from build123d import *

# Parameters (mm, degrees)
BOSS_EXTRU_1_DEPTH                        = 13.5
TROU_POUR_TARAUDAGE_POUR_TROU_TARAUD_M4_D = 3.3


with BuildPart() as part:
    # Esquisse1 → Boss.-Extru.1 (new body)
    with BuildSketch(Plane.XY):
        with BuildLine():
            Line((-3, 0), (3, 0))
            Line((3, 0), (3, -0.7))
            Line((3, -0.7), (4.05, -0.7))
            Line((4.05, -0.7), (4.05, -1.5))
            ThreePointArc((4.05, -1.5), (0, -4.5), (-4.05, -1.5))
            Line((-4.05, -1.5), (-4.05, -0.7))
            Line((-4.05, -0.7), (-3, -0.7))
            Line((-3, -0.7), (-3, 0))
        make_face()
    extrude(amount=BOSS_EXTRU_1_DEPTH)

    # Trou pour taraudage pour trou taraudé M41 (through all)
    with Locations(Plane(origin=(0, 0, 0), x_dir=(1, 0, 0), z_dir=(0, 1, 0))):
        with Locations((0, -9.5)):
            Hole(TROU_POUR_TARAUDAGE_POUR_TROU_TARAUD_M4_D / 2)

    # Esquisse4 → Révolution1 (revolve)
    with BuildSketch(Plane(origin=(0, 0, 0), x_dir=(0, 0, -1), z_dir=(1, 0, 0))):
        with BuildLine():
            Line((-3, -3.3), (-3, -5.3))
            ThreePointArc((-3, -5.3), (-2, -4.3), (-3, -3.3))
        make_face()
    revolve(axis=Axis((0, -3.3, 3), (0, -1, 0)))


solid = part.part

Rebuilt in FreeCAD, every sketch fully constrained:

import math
import FreeCAD as App
import Part
import Sketcher

V = App.Vector

doc = App.newDocument("Part")
body = doc.addObject("PartDesign::Body", "Body")

# Sketch on XY plane
sketch1 = doc.addObject("Sketcher::SketchObject", "Sketch")
body.addObject(sketch1)
sketch1.AttachmentSupport = (doc.XY_Plane, [""])
sketch1.MapMode = "FlatFace"
sketch1.addGeometry(Part.LineSegment(V(3, 0, 0), V(-3, 0, 0)), False)
sketch1.addGeometry(Part.LineSegment(V(-3, 0, 0), V(-3, -0.7, 0)), False)
sketch1.addGeometry(Part.LineSegment(V(-3, -0.7, 0), V(-4, -0.7, 0)), False)
sketch1.addGeometry(Part.LineSegment(V(-4, -0.7, 0), V(-4, -1.5, 0)), False)
sketch1.addGeometry(Part.ArcOfCircle(Part.Circle(V(0, -0.3, 0), V(0, 0, 1), 4.2), math.radians(-163), math.radians(-17)), False)
sketch1.addGeometry(Part.LineSegment(V(4, -1.5, 0), V(4, -0.7, 0)), False)
sketch1.addGeometry(Part.LineSegment(V(4, -0.7, 0), V(3, -0.7, 0)), False)
sketch1.addGeometry(Part.LineSegment(V(3, -0.7, 0), V(3, 0, 0)), False)
sketch1.addConstraint(Sketcher.Constraint("Coincident", 0, 2, 1, 1))
sketch1.addConstraint(Sketcher.Constraint("Coincident", 1, 2, 2, 1))
sketch1.addConstraint(Sketcher.Constraint("Coincident", 2, 2, 3, 1))
sketch1.addConstraint(Sketcher.Constraint("Coincident", 3, 2, 4, 1))
sketch1.addConstraint(Sketcher.Constraint("Coincident", 4, 2, 5, 1))
sketch1.addConstraint(Sketcher.Constraint("Coincident", 5, 2, 6, 1))
sketch1.addConstraint(Sketcher.Constraint("Coincident", 6, 2, 7, 1))
sketch1.addConstraint(Sketcher.Constraint("Coincident", 7, 2, 0, 1))
sketch1.addConstraint(Sketcher.Constraint("Horizontal", 0))
sketch1.addConstraint(Sketcher.Constraint("Vertical", 1))
sketch1.addConstraint(Sketcher.Constraint("Horizontal", 2))
sketch1.addConstraint(Sketcher.Constraint("Vertical", 3))
sketch1.addConstraint(Sketcher.Constraint("Vertical", 5))
sketch1.addConstraint(Sketcher.Constraint("Horizontal", 6))
sketch1.addConstraint(Sketcher.Constraint("Vertical", 7))
sketch1.addConstraint(Sketcher.Constraint("Symmetric", 0, 2, 7, 2, -1, 1))
sketch1.addConstraint(Sketcher.Constraint("Symmetric", 3, 2, 4, 2, -2))
sketch1.addConstraint(Sketcher.Constraint("Horizontal", 2, 2, 5, 2))
sketch1.addConstraint(Sketcher.Constraint("DistanceX", 0, 2, 0, 1, 6.0))
sketch1.addConstraint(Sketcher.Constraint("DistanceY", 1, 2, 1, 1, 0.7))
sketch1.addConstraint(Sketcher.Constraint("DistanceY", 3, 2, 3, 1, 0.8))
sketch1.addConstraint(Sketcher.Constraint("DistanceX", 2, 2, 2, 1, 1.05))
sketch1.addConstraint(Sketcher.Constraint("Radius", 4, 4.23375))
pad1 = doc.addObject("PartDesign::Pad", "Pad")
body.addObject(pad1)
pad1.Profile = sketch1
pad1.Length = 13.5

# Sketch on XZ plane
sketch2 = doc.addObject("Sketcher::SketchObject", "Sketch001")
body.addObject(sketch2)
sketch2.AttachmentSupport = (doc.XZ_Plane, [""])
sketch2.MapMode = "FlatFace"
sketch2.addGeometry(Part.Circle(V(0, 9.5, 0), V(0, 0, 1), 1.6), False)
sketch2.addConstraint(Sketcher.Constraint("PointOnObject", 0, 3, -2))
sketch2.addConstraint(Sketcher.Constraint("Diameter", 0, 3.3))
sketch2.addConstraint(Sketcher.Constraint("DistanceY", -1, 1, 0, 3, 9.5))
doc.recompute()
hole = doc.addObject("PartDesign::Hole", "Hole")
body.addObject(hole)
hole.Profile = sketch2
hole.ThreadType = "None"
hole.Diameter = 3.3
hole.DepthType = "ThroughAll"
hole.Reversed = True

# Sketch on YZ plane
sketch3 = doc.addObject("Sketcher::SketchObject", "Sketch002")
body.addObject(sketch3)
sketch3.AttachmentSupport = (doc.YZ_Plane, [""])
sketch3.MapMode = "FlatFace"
sketch3.addGeometry(Part.LineSegment(V(-3.3, 3, 0), V(-5.3, 3, 0)), False)
sketch3.addGeometry(Part.ArcOfCircle(Part.Circle(V(-4.3, 3, 0), V(0, 0, 1), 1), math.radians(180), math.radians(360)), False)
sketch3.addGeometry(Part.LineSegment(V(-3.3, 3, 0), V(-5.3, 3, 0)), True)  # axis
sketch3.addConstraint(Sketcher.Constraint("Coincident", 0, 1, 1, 2))
sketch3.addConstraint(Sketcher.Constraint("Coincident", 1, 1, 0, 2))
sketch3.addConstraint(Sketcher.Constraint("Horizontal", 0))
sketch3.addConstraint(Sketcher.Constraint("Horizontal", 2))
sketch3.addConstraint(Sketcher.Constraint("Coincident", 2, 1, 0, 1))
sketch3.addConstraint(Sketcher.Constraint("Horizontal", 1, 3, 0, 1))
sketch3.addConstraint(Sketcher.Constraint("Equal", 0, 2))
sketch3.addConstraint(Sketcher.Constraint("Radius", 1, 1.0))
sketch3.addConstraint(Sketcher.Constraint("DistanceY", -1, 1, 1, 3, 3.0))
sketch3.addConstraint(Sketcher.Constraint("DistanceX", 1, 3, -1, 1, 4.3))
revolution = doc.addObject("PartDesign::Revolution", "Revolution")
body.addObject(revolution)
revolution.Profile = sketch3
revolution.ReferenceAxis = (sketch3, ["Axis0"])
revolution.Angle = 360

doc.recompute()
